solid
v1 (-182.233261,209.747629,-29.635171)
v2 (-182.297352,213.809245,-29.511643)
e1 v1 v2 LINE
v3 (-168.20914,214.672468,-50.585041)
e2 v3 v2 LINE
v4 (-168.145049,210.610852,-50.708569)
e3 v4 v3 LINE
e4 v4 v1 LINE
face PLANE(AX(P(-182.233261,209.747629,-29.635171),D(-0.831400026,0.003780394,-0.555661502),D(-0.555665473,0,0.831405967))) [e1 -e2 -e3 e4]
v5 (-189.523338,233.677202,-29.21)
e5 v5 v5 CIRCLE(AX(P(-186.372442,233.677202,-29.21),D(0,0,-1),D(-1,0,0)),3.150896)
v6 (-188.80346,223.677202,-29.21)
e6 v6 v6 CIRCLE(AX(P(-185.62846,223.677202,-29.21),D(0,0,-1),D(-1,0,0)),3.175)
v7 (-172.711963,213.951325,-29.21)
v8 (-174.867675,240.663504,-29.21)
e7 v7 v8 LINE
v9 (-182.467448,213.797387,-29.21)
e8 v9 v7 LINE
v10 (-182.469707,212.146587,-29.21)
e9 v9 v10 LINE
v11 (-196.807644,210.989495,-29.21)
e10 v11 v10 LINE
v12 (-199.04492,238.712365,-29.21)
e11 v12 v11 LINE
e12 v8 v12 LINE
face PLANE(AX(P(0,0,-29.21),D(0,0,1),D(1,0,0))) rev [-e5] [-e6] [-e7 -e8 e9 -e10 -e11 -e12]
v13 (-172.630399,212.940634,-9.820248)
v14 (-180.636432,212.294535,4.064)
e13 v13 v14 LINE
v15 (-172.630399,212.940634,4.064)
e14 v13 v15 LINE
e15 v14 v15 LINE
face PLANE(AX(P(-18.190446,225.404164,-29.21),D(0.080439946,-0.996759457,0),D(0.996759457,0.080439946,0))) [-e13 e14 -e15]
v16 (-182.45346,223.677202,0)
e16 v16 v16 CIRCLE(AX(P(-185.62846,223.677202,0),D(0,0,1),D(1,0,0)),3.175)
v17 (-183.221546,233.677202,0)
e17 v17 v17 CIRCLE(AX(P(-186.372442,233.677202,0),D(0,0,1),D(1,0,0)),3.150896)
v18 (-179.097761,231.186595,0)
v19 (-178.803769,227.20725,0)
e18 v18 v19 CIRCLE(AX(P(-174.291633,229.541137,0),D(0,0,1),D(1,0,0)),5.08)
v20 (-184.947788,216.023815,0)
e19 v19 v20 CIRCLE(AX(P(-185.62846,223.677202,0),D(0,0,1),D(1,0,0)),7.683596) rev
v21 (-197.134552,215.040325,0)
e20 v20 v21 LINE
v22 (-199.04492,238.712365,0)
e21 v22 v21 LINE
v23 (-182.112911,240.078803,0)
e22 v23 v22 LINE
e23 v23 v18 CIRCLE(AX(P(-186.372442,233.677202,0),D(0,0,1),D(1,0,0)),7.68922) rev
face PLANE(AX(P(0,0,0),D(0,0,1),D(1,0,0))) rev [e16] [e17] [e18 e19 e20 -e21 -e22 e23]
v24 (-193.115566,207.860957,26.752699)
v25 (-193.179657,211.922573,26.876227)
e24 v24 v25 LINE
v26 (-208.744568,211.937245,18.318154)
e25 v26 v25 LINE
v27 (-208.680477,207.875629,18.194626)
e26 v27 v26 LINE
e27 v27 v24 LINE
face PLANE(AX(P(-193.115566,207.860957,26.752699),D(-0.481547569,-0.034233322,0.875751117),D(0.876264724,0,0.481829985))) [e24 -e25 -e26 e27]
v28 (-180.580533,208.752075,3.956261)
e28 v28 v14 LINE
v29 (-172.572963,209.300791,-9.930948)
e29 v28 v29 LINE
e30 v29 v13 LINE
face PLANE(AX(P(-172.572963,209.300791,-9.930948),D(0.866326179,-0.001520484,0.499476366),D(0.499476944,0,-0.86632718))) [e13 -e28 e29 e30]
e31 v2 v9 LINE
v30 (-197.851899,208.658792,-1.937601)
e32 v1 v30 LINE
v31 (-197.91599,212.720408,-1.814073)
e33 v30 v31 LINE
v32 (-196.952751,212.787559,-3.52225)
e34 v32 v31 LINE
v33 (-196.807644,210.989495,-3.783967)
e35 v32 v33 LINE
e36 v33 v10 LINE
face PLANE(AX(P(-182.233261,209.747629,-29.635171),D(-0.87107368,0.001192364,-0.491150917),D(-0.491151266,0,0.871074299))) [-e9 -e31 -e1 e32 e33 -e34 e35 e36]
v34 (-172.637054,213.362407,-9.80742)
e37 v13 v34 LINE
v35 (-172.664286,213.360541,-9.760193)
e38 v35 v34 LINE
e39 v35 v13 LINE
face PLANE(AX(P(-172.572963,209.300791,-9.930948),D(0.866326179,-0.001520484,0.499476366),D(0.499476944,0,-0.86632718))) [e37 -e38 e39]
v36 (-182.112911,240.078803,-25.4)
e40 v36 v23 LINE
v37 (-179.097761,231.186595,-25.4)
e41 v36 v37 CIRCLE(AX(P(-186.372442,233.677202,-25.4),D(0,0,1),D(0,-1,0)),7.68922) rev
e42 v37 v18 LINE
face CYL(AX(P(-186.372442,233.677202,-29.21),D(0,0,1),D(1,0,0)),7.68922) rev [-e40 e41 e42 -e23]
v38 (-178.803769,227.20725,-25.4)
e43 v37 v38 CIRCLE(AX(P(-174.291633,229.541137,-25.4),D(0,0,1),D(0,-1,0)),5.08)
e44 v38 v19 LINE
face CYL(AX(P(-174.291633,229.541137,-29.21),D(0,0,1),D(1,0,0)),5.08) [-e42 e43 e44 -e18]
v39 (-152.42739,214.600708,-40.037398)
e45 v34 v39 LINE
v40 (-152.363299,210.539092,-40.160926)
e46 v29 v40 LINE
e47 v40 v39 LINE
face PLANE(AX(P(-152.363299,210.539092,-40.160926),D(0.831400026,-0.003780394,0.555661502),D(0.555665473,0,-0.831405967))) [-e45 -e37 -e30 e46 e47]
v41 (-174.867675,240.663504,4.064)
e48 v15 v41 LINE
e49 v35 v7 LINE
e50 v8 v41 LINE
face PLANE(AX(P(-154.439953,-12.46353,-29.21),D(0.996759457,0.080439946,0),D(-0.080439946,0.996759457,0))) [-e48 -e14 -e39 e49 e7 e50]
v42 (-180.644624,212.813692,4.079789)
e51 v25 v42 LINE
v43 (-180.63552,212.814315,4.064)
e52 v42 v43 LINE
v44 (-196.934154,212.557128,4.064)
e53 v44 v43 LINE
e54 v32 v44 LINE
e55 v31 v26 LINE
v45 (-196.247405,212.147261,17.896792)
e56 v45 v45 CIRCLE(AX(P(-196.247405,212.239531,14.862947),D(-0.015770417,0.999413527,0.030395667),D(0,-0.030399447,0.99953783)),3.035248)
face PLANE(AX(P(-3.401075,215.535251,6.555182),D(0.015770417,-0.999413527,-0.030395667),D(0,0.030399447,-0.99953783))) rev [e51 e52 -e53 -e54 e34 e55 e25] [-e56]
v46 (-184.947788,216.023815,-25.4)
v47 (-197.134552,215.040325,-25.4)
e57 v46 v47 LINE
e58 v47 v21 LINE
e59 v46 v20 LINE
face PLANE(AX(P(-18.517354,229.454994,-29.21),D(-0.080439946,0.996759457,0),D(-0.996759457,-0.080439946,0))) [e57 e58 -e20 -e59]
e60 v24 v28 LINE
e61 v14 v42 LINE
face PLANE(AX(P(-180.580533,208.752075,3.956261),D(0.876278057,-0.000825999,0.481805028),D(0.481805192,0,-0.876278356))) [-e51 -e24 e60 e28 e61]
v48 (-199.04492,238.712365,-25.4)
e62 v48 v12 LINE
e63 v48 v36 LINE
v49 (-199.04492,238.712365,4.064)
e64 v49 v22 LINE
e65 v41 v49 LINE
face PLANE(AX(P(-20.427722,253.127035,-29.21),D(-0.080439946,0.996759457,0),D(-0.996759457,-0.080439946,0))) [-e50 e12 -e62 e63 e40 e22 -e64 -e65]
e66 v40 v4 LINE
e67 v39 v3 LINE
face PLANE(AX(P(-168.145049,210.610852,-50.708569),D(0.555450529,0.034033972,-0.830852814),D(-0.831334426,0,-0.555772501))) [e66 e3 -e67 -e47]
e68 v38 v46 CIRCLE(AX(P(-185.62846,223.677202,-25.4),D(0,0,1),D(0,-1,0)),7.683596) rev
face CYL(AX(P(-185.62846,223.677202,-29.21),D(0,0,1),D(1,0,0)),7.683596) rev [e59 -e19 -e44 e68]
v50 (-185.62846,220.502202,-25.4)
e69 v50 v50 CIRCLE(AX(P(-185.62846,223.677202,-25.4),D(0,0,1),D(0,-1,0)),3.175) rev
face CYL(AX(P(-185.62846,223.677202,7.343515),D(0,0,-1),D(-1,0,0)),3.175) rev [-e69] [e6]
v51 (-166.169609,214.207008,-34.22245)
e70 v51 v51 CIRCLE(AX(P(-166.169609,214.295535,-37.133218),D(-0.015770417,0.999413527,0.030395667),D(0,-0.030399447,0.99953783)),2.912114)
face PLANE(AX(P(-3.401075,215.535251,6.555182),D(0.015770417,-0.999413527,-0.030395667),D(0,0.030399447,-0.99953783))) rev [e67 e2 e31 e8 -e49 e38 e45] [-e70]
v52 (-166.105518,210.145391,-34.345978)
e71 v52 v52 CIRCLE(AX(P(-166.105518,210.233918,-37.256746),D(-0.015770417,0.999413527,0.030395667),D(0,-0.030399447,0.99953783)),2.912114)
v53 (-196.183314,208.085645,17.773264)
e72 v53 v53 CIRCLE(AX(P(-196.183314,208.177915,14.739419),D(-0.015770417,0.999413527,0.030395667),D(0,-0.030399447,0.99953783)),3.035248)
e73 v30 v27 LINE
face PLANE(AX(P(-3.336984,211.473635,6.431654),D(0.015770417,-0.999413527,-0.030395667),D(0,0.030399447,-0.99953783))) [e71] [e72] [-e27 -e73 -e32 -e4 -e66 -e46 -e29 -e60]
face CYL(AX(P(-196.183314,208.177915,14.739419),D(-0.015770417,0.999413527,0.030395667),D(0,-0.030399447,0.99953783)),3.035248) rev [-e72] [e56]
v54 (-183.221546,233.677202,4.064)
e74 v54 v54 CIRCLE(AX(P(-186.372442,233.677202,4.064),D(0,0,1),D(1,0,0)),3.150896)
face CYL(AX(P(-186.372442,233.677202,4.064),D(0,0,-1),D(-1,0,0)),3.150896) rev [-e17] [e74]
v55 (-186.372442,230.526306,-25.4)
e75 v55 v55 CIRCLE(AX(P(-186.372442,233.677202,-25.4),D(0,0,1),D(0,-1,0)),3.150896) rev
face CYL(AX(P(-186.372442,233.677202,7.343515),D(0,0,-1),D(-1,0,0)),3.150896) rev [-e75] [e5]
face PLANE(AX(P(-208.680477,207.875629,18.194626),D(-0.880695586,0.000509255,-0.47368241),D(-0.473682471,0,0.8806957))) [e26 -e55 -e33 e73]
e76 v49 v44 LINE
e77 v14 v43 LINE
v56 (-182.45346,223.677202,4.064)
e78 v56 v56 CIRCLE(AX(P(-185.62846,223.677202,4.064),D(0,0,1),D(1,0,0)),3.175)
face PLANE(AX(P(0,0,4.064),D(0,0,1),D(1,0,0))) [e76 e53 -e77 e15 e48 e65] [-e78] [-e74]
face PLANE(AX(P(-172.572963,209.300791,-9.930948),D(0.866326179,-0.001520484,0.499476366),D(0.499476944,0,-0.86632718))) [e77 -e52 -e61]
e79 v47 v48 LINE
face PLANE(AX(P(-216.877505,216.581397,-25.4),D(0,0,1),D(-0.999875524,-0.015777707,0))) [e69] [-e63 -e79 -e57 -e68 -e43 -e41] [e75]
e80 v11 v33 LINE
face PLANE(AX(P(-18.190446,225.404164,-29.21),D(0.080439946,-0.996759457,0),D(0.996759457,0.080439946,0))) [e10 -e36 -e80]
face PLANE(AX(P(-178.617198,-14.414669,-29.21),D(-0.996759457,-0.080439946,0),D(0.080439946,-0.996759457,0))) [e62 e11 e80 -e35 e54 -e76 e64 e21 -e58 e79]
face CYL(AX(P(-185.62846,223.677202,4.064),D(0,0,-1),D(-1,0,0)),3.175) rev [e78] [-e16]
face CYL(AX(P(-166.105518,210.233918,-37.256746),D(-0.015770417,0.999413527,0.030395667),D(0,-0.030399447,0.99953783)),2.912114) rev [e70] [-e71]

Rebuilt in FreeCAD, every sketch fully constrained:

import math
import FreeCAD as App
import Part
import Sketcher
from FreeCAD import Vector
Q = App.Units.Quantity

doc = App.newDocument("Part")
body = doc.addObject("PartDesign::Body", "Body")

# Sketch on XY plane
sketch1 = body.newObject("Sketcher::SketchObject", "Sketch")
sketch1.AttachmentSupport = (doc.getObject("XY_Plane"), [""])
sketch1.MapMode = "FlatFace"
sketch1.addGeometry([
    Part.LineSegment(Vector(-184.947788, 216.023815, 0), Vector(-197.134552, 215.040325, 0)),  # 0
    Part.LineSegment(Vector(-197.134552, 215.040325, 0), Vector(-196.807644, 210.989495, 0)),  # 1
    Part.LineSegment(Vector(-196.807644, 210.989495, 0), Vector(-172.630399, 212.940634, 0)),  # 2
    Part.LineSegment(Vector(-172.630399, 212.940634, 0), Vector(-174.867675, 240.663504, 0)),  # 3
    Part.LineSegment(Vector(-174.867675, 240.663504, 0), Vector(-182.112911, 240.078803, 0)),  # 4
    Part.ArcOfCircle(Part.Circle(Vector(-186.372442, 233.677202, 0), Vector(0, 0, 1), 7.68922), math.radians(-18.899487), math.radians(56.36079)),  # 5
    Part.ArcOfCircle(Part.Circle(Vector(-174.291633, 229.541137, 0), Vector(0, 0, 1), 5.08), math.radians(161.100513), math.radians(207.350112)),  # 6
    Part.ArcOfCircle(Part.Circle(Vector(-185.62846, 223.677202, 0), Vector(0, 0, 1), 7.683596), math.radians(-84.917636), math.radians(27.350112)),  # 7
], False)
sketch1.addConstraint([
    Sketcher.Constraint("Coincident", 0, 2, 1, 1),
    Sketcher.Constraint("Coincident", 1, 2, 2, 1),
    Sketcher.Constraint("Coincident", 2, 2, 3, 1),
    Sketcher.Constraint("Coincident", 3, 2, 4, 1),
    Sketcher.Constraint("Coincident", 4, 2, 5, 2),
    Sketcher.Constraint("Coincident", 5, 1, 6, 1),
    Sketcher.Constraint("Coincident", 6, 2, 7, 2),
    Sketcher.Constraint("Coincident", 7, 1, 0, 1),
    Sketcher.Constraint("Radius", 6, Q("0.2 in")),
    Sketcher.Constraint("Distance", 1, Q("0.16 in")),
    Sketcher.Constraint("Distance", 3, Q("1.095 in")),
    Sketcher.Constraint("Radius", 5, Q("7.68922 mm")),
    Sketcher.Constraint("Radius", 7, Q("7.683596 mm")),
    Sketcher.Constraint("DistanceY", -1, 1, 5, 3, Q("233.677202 mm")),
    Sketcher.Constraint("DistanceY", -1, 1, 7, 3, Q("223.677202 mm")),
    Sketcher.Constraint("DistanceX", 2, 2, -1, 1, Q("172.630399 mm")),
    Sketcher.Constraint("DistanceX", 1, 2, 5, 3, Q("10.435202 mm")),
    Sketcher.Constraint("DistanceY", 4, 2, 3, 2, Q("0.584701 mm")),
    Sketcher.Constraint("DistanceY", 5, 3, 4, 2, Q("6.401601 mm")),
    Sketcher.Constraint("DistanceX", 7, 3, 5, 1, Q("6.530699 mm")),
    Sketcher.Constraint("Distance", 4, Q("7.26879 mm")),
    Sketcher.Constraint("DistanceX", 7, 3, -1, 1, Q("185.62846 mm")),
    Sketcher.Constraint("DistanceX", 0, 2, -1, 1, Q("197.134552 mm")),
    Sketcher.Constraint("DistanceX", 4, 2, -1, 1, Q("182.112911 mm")),
    Sketcher.Constraint("DistanceX", 6, 2, -1, 1, Q("178.803769 mm")),
    Sketcher.Constraint("DistanceY", 1, 2, 2, 2, Q("1.951139 mm")),
    Sketcher.Constraint("DistanceY", 0, 2, 7, 1, Q("0.98349 mm")),
])
pad1 = body.newObject("PartDesign::Pad", "Pad")
pad1.Profile = sketch1
pad1.Length = Q("1.15 in")
pad1.Reversed = True

# Sketch on XY plane
sketch2 = body.newObject("Sketcher::SketchObject", "Sketch001")
sketch2.AttachmentSupport = (doc.getObject("XY_Plane"), [""])
sketch2.MapMode = "FlatFace"
sketch2.addGeometry([
    Part.LineSegment(Vector(-172.630399, 212.940634, 0), Vector(-174.867675, 240.663504, 0)),  # 0
    Part.LineSegment(Vector(-174.867675, 240.663504, 0), Vector(-199.04492, 238.712365, 0)),  # 1
    Part.LineSegment(Vector(-199.04492, 238.712365, 0), Vector(-196.807644, 210.989495, 0)),  # 2
    Part.LineSegment(Vector(-196.807644, 210.989495, 0), Vector(-172.630399, 212.940634, 0)),  # 3
    Part.Circle(Vector(-185.62846, 223.677202, 0), Vector(0, 0, 1), 3.175),  # 4
    Part.Circle(Vector(-186.372442, 233.677202, 0), Vector(0, 0, 1), 3.150896),  # 5
], False)
sketch2.addConstraint([
    Sketcher.Constraint("Coincident", 0, 2, 1, 1),
    Sketcher.Constraint("Coincident", 1, 2, 2, 1),
    Sketcher.Constraint("Coincident", 2, 2, 3, 1),
    Sketcher.Constraint("Coincident", 3, 2, 0, 1),
    Sketcher.Constraint("Perpendicular", 0, 1),
    Sketcher.Constraint("Perpendicular", 1, 2),
    Sketcher.Constraint("Perpendicular", 2, 3),
    Sketcher.Constraint("Diameter", 4, Q("0.25 in")),
    Sketcher.Constraint("Distance", 0, Q("1.095 in")),
    Sketcher.Constraint("Diameter", 5, Q("6.301792 mm")),
    Sketcher.Constraint("DistanceY", -1, 1, 4, 3, Q("223.677202 mm")),
    Sketcher.Constraint("DistanceY", -1, 1, 5, 3, Q("233.677202 mm")),
    Sketcher.Constraint("DistanceX", 3, 2, -1, 1, Q("172.630399 mm")),
    Sketcher.Constraint("DistanceX", 2, 2, 5, 3, Q("10.435202 mm")),
    Sketcher.Constraint("DistanceX", 4, 3, -1, 1, Q("185.62846 mm")),
    Sketcher.Constraint("DistanceX", 1, 2, -1, 1, Q("199.04492 mm")),
    Sketcher.Constraint("DistanceX", 1, 2, 5, 3, Q("12.672478 mm")),
    Sketcher.Constraint("DistanceY", 3, 2, 4, 3, Q("10.736568 mm")),
])
pad2 = body.newObject("PartDesign::Pad", "Pad001")
pad2.Profile = sketch2
pad2.Length = Q("0.16 in")

# Sketch on XY plane
sketch3 = body.newObject("Sketcher::SketchObject", "Sketch002")
sketch3.AttachmentSupport = (doc.getObject("XY_Plane"), [""])
sketch3.MapMode = "FlatFace"
sketch3.AttachmentOffset = App.Placement(Vector(0, 0, -1 * 25.4), App.Rotation())
sketch3.addGeometry([
    Part.LineSegment(Vector(-197.134552, 215.040325, 0), Vector(-199.04492, 238.712365, 0)),  # 0
    Part.LineSegment(Vector(-199.04492, 238.712365, 0), Vector(-182.112911, 240.078803, 0)),  # 1
    Part.ArcOfCircle(Part.Circle(Vector(-186.372442, 233.677202, 0), Vector(0, 0, 1), 7.68922), math.radians(-18.899487), math.radians(56.36079)),  # 2
    Part.ArcOfCircle(Part.Circle(Vector(-174.291633, 229.541137, 0), Vector(0, 0, 1), 5.08), math.radians(161.100513), math.radians(207.350112)),  # 3
    Part.ArcOfCircle(Part.Circle(Vector(-185.62846, 223.677202, 0), Vector(0, 0, 1), 7.683596), math.radians(-84.917636), math.radians(27.350112)),  # 4
    Part.LineSegment(Vector(-184.947788, 216.023815, 0), Vector(-197.134552, 215.040325, 0)),  # 5
    Part.Circle(Vector(-185.62846, 223.677202, 0), Vector(0, 0, 1), 3.175),  # 6
    Part.Circle(Vector(-186.372442, 233.677202, 0), Vector(0, 0, 1), 3.150896),  # 7
], False)
sketch3.addConstraint([
    Sketcher.Constraint("Coincident", 0, 2, 1, 1),
    Sketcher.Constraint("Coincident", 1, 2, 2, 2),
    Sketcher.Constraint("Coincident", 2, 1, 3, 1),
    Sketcher.Constraint("Coincident", 3, 2, 4, 2),
    Sketcher.Constraint("Coincident", 4, 1, 5, 1),
    Sketcher.Constraint("Coincident", 5, 2, 0, 1),
    Sketcher.Constraint("Coincident", 6, 3, 4, 3),
    Sketcher.Constraint("Coincident", 7, 3, 2, 3),
    Sketcher.Constraint("Radius", 3, Q("0.2 in")),
    Sketcher.Constraint("Diameter", 6, Q("0.25 in")),
    Sketcher.Constraint("Distance", 0, Q("0.935 in")),
    Sketcher.Constraint("Radius", 2, Q("7.68922 mm")),
    Sketcher.Constraint("Diameter", 7, Q("6.301792 mm")),
    Sketcher.Constraint("Radius", 4, Q("7.683596 mm")),
    Sketcher.Constraint("DistanceY", -1, 1, 2, 3, Q("233.677202 mm")),
    Sketcher.Constraint("DistanceY", -1, 1, 4, 3, Q("223.677202 mm")),
    Sketcher.Constraint("DistanceY", 7, 3, 1, 2, Q("6.401601 mm")),
    Sketcher.Constraint("DistanceX", 6, 3, 2, 1, Q("6.530699 mm")),
    Sketcher.Constraint("DistanceX", 4, 3, -1, 1, Q("185.62846 mm")),
    Sketcher.Constraint("DistanceX", 0, 2, -1, 1, Q("199.04492 mm")),
    Sketcher.Constraint("DistanceX", 1, 2, -1, 1, Q("182.112911 mm")),
    Sketcher.Constraint("DistanceX", 3, 2, -1, 1, Q("178.803769 mm")),
    Sketcher.Constraint("DistanceX", 5, 2, -1, 1, Q("197.134552 mm")),
    Sketcher.Constraint("DistanceY", 3, 3, 0, 2, Q("9.171228 mm")),
    Sketcher.Constraint("DistanceX", 4, 1, 3, 2, Q("6.144019 mm")),
])
pad3 = body.newObject("PartDesign::Pad", "Pad002")
pad3.Profile = sketch3
pad3.Length = Q("0.15 in")
pad3.Reversed = True

# Sketch on an angled plane
sketch4 = body.newObject("Sketcher::SketchObject", "Sketch003")
sketch4.Placement = App.Placement(Vector(-3.401075, 215.535251, 6.555182), App.Rotation(Vector(0.999875639, 0.015763128, 0.000479412), Vector(0, 0.030399447, -0.99953783), Vector(-0.015770417, 0.999413527, 0.030395667), "ZXY"))
sketch4.addGeometry([
    Part.LineSegment(Vector(-164.828563, 57.087587, 0), Vector(-178.918527, 35.997686, 0)),  # 0
    Part.LineSegment(Vector(-178.918527, 35.997686, 0), Vector(-194.539108, 8.279818, 0)),  # 1
    Part.LineSegment(Vector(-194.539108, 8.279818, 0), Vector(-205.369032, -11.866912, 0)),  # 2
    Part.LineSegment(Vector(-205.369032, -11.866912, 0), Vector(-189.802186, -20.421477, 0)),  # 3
    Part.LineSegment(Vector(-189.802186, -20.421477, 0), Vector(-177.265594, 2.391515, 0)),  # 4
    Part.LineSegment(Vector(-177.265594, 2.391515, 0), Vector(-169.257028, 16.288987, 0)),  # 5
    Part.LineSegment(Vector(-169.257028, 16.288987, 0), Vector(-149.044849, 46.542636, 0)),  # 6
    Part.LineSegment(Vector(-149.044849, 46.542636, 0), Vector(-164.828563, 57.087587, 0)),  # 7
    Part.Circle(Vector(-192.870315, -8.404113, 0), Vector(0, 0, 1), 3.035248),  # 8
    Part.Circle(Vector(-162.788778, 43.630522, 0), Vector(0, 0, 1), 2.912114),  # 9
], False)
sketch4.addConstraint([
    Sketcher.Constraint("Coincident", 0, 2, 1, 1),
    Sketcher.Constraint("Coincident", 1, 2, 2, 1),
    Sketcher.Constraint("Coincident", 2, 2, 3, 1),
    Sketcher.Constraint("Coincident", 3, 2, 4, 1),
    Sketcher.Constraint("Coincident", 4, 2, 5, 1),
    Sketcher.Constraint("Coincident", 5, 2, 6, 1),
    Sketcher.Constraint("Coincident", 6, 2, 7, 1),
    Sketcher.Constraint("Coincident", 7, 2, 0, 1),
    Sketcher.Constraint("Perpendicular", 3, 4),
    Sketcher.Constraint("Parallel", 0, 6),
    Sketcher.Constraint("Perpendicular", 6, 7),
    Sketcher.Constraint("Diameter", 9, Q("5.824229 mm")),
    Sketcher.Constraint("Diameter", 8, Q("6.070497 mm")),
    Sketcher.Constraint("DistanceY", 8, 3, 0, 2, Q("44.401799 mm")),
    Sketcher.Constraint("DistanceY", 2, 2, 8, 3, Q("3.462799 mm")),
    Sketcher.Constraint("DistanceY", 3, 2, 9, 3, Q("64.051999 mm")),
    Sketcher.Constraint("DistanceX", 0, 2, 5, 2, Q("9.661499 mm")),
    Sketcher.Constraint("DistanceY", 5, 2, 0, 2, Q("19.708699 mm")),
    Sketcher.Constraint("DistanceY", 0, 2, 7, 2, Q("21.0899 mm")),
    Sketcher.Constraint("Distance", 1, Q("31.816392 mm")),
    Sketcher.Constraint("Distance", 5, Q("16.039852 mm")),
    Sketcher.Constraint("Distance", 7, Q("18.982138 mm")),
    Sketcher.Constraint("DistanceX", 6, 2, -1, 1, Q("149.044849 mm")),
    Sketcher.Constraint("DistanceX", 0, 2, 9, 3, Q("16.129749 mm")),
    Sketcher.Constraint("DistanceX", 8, 3, 0, 2, Q("13.951788 mm")),
    Sketcher.Constraint("DistanceY", 8, 3, 1, 2, Q("16.683931 mm")),
    Sketcher.Constraint("DistanceX", 8, 3, 3, 2, Q("3.068129 mm")),
    Sketcher.Constraint("DistanceX", 8, 3, 4, 2, Q("15.604721 mm")),
    Sketcher.Constraint("DistanceY", 3, 2, 4, 2, Q("22.812992 mm")),
    Sketcher.Constraint("DistanceY", 8, 3, -1, 1, Q("8.404113 mm")),
])
pad4 = body.newObject("PartDesign::Pad", "Pad003")
pad4.Profile = sketch4
pad4.Length = Q("0.16 in")
pad4.Reversed = True

doc.recompute()
